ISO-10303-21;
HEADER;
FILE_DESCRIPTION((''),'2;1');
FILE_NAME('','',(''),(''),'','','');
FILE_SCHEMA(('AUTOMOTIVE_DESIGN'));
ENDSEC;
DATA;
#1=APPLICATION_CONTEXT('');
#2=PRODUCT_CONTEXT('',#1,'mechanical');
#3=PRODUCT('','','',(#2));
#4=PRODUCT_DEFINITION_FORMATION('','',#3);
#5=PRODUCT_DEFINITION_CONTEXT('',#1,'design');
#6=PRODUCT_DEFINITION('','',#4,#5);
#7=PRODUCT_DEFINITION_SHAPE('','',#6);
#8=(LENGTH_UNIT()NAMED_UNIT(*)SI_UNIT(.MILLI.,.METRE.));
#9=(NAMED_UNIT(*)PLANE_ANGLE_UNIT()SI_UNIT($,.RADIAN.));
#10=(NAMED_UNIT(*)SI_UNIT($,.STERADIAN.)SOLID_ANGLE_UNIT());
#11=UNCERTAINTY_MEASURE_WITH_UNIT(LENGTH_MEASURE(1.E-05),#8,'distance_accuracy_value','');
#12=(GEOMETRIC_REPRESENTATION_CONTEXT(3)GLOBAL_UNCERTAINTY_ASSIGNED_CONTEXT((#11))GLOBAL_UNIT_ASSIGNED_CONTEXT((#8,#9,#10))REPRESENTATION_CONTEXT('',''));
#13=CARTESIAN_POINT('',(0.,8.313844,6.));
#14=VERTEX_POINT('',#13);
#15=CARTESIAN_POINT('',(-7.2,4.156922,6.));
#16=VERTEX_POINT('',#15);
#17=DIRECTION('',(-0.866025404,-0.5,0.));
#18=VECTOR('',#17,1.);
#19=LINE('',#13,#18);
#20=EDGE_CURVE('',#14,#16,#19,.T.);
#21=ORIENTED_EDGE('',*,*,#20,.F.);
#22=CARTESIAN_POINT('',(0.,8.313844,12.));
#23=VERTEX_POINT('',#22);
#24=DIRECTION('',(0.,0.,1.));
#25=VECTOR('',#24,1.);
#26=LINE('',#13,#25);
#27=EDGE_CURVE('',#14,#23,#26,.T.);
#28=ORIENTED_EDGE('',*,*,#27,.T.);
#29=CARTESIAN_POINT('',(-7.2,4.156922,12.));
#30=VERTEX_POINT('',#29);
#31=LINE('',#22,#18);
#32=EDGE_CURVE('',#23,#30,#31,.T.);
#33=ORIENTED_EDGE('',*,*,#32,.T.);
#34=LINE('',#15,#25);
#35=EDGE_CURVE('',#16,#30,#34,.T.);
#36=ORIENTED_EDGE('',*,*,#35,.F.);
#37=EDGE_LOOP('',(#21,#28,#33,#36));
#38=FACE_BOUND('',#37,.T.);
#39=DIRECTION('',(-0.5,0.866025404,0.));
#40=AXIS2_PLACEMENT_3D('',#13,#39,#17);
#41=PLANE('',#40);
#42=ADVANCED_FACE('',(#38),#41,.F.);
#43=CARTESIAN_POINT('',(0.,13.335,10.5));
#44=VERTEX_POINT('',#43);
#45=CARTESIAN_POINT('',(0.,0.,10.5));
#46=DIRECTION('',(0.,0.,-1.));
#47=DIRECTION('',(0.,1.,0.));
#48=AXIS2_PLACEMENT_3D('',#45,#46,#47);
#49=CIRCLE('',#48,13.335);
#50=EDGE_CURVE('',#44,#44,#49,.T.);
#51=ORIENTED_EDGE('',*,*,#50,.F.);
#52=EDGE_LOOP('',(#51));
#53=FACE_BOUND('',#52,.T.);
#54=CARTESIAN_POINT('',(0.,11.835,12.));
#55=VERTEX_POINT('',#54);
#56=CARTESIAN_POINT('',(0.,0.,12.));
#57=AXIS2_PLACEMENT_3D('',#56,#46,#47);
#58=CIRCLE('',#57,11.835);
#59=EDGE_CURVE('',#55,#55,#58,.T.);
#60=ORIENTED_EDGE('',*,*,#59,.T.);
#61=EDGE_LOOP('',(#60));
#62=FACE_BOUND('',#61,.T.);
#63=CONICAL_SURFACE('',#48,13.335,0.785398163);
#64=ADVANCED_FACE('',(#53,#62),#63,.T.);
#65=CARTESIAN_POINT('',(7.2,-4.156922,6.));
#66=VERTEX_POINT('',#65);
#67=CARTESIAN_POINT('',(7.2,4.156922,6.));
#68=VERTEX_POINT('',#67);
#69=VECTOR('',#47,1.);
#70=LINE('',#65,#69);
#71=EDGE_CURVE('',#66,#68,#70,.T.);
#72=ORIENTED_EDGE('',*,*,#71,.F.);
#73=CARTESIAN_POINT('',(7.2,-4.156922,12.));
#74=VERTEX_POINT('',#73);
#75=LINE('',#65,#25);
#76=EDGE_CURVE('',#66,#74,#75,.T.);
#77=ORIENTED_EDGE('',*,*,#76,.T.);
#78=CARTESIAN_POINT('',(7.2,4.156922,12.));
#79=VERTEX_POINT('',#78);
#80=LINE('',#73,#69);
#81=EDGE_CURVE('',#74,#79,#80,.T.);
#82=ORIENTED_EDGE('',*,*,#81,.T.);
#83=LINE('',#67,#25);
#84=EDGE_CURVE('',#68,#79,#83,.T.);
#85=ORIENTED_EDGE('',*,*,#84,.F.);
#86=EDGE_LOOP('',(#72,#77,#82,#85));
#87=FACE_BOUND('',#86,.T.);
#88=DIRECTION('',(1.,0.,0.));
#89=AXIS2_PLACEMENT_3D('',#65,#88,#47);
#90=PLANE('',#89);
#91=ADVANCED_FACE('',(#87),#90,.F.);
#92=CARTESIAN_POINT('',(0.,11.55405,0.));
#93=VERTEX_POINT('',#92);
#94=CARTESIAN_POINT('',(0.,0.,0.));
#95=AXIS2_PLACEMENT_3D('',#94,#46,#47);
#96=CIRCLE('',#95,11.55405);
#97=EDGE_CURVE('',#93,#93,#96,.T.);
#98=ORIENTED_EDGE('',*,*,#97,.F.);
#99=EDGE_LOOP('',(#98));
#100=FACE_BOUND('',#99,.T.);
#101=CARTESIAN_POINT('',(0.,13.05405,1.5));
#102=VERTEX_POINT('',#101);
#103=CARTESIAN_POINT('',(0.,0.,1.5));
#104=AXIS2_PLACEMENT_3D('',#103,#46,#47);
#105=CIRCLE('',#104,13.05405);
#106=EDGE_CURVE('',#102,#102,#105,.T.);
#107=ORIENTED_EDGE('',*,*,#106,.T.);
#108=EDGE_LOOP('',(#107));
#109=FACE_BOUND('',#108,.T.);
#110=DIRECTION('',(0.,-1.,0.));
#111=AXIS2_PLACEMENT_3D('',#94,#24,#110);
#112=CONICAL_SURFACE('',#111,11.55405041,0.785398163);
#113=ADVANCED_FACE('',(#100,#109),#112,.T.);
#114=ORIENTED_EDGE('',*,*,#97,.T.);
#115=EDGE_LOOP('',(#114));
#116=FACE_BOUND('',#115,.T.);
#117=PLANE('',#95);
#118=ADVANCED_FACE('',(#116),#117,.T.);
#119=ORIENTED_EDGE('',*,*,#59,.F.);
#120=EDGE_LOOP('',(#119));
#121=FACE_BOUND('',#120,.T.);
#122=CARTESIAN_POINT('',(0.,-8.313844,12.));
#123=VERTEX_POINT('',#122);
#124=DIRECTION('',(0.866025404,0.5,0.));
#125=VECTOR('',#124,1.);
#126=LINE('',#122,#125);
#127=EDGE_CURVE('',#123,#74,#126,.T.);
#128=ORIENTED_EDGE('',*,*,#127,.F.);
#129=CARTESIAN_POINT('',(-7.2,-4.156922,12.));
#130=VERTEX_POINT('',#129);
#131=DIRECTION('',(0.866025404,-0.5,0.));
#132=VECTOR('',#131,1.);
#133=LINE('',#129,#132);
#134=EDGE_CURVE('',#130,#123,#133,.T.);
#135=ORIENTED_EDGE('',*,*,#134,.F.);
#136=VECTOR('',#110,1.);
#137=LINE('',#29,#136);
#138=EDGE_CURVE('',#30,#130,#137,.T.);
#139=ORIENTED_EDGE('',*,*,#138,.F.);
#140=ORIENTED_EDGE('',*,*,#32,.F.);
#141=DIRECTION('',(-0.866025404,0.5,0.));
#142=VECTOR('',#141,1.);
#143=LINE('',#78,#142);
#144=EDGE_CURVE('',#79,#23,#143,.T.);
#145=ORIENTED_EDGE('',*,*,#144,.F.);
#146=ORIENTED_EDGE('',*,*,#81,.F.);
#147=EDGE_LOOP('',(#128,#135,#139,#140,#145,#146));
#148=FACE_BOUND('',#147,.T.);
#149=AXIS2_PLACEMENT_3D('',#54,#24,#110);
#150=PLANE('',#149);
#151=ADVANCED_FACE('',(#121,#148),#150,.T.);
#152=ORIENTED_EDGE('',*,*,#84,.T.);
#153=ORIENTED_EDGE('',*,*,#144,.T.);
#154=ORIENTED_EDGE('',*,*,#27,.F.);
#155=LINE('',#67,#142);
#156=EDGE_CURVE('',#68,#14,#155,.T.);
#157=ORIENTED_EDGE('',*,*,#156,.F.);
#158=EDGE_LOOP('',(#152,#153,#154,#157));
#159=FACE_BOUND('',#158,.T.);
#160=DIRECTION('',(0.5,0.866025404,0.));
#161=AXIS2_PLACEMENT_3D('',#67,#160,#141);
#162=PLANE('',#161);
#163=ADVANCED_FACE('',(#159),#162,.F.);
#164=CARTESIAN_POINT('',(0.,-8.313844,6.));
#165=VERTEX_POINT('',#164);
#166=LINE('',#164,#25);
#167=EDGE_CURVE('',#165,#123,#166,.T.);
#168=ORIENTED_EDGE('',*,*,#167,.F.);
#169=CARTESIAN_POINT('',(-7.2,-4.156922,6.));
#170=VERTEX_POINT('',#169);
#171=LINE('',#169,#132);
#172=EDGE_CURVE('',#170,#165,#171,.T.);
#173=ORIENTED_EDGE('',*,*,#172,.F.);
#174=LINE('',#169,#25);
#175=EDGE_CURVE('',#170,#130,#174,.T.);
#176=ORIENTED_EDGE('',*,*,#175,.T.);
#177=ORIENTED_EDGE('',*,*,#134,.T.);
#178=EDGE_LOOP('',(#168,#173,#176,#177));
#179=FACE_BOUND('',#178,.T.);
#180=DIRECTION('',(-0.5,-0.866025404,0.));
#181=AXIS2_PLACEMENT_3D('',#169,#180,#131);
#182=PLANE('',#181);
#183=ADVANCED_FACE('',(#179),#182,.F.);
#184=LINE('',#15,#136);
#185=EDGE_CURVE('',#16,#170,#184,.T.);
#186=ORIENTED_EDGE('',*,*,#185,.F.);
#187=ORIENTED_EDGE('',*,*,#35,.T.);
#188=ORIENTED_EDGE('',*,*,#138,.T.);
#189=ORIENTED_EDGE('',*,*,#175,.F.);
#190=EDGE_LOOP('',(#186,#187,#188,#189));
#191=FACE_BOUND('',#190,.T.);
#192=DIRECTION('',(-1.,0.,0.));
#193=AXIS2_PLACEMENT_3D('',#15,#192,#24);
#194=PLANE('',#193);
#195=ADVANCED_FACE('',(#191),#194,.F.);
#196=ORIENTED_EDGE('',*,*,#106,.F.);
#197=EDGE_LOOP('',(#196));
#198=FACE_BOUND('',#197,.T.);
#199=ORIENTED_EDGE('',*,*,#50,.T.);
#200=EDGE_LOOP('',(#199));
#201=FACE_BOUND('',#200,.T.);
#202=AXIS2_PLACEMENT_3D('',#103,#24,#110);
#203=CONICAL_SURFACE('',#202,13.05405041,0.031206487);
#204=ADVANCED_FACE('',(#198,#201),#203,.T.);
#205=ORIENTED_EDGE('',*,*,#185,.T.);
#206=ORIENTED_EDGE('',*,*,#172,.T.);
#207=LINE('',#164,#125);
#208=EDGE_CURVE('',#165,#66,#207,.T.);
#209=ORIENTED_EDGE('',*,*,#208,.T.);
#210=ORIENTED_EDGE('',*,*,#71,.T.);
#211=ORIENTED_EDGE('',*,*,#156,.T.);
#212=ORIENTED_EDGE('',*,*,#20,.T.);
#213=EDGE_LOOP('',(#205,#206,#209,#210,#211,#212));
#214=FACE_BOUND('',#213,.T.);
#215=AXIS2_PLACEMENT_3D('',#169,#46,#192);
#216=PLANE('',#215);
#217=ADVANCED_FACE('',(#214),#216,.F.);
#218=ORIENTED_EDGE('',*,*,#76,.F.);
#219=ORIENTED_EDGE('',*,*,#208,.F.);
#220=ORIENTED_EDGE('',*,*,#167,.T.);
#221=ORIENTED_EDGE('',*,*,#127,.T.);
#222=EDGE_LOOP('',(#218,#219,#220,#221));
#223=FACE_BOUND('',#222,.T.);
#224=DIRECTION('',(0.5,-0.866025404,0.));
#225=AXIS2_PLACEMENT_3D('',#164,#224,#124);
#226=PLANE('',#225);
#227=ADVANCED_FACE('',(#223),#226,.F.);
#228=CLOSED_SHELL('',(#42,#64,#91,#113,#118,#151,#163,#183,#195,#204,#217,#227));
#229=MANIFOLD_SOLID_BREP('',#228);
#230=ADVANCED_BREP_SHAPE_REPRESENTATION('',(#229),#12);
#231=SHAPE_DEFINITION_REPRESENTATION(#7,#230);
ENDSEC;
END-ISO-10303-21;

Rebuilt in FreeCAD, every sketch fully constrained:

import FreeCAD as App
import Part
import Sketcher
from FreeCAD import Vector
Q = App.Units.Quantity


def add_polygon(sketch, points):
    """Adds a closed chain of lines whose ends are joined by coincident constraints."""
    first, n = sketch.GeometryCount, len(points)
    for a, b in zip(points, points[1:] + points[:1]):
        sketch.addGeometry(Part.LineSegment(App.Vector(*a, 0), App.Vector(*b, 0)), False)
    for i in range(n):
        sketch.addConstraint(Sketcher.Constraint("Coincident", first + i, 2, first + (i + 1) % n, 1))

doc = App.newDocument("Part")
body = doc.addObject("PartDesign::Body", "Body")

# Sketch on YZ plane
sketch1 = body.newObject("Sketcher::SketchObject", "Sketch")
sketch1.AttachmentSupport = (doc.getObject("YZ_Plane"), [""])
sketch1.MapMode = "FlatFace"
add_polygon(sketch1, [(0, 0), (11.6, 0), (13.1, 1.5), (13.3, 10.5), (11.8, 12), (0, 12)])  # lines 0-5
sketch1.addConstraint(Sketcher.Constraint("Horizontal", 0))
sketch1.addConstraint(Sketcher.Constraint("Horizontal", 4))
sketch1.addConstraint(Sketcher.Constraint("Vertical", 5))
sketch1.addConstraint(Sketcher.Constraint("Coincident", 5, 2, -1, 1))
sketch1.addConstraint(Sketcher.Constraint("Perpendicular", 1, 3))
sketch1.addConstraint(Sketcher.Constraint("Equal", 1, 3))
sketch1.addConstraint(Sketcher.Constraint("DistanceY", 5, 2, 5, 1, Q("12 mm")))
sketch1.addConstraint(Sketcher.Constraint("Angle", 1, Q("45 deg")))
sketch1.addConstraint(Sketcher.Constraint("DistanceY", 1, 2, 2, 2, Q("9 mm")))
sketch1.addConstraint(Sketcher.Constraint("DistanceX", 4, 2, 4, 1, Q("11.835 mm")))
sketch1.addConstraint(Sketcher.Constraint("DistanceX", 0, 1, 0, 2, Q("11.55405 mm")))
revolution = body.newObject("PartDesign::Revolution", "Revolution")
revolution.Profile = sketch1
revolution.ReferenceAxis = (sketch1, ["V_Axis"])
revolution.Angle = 360

# Sketch on XY plane
sketch2 = body.newObject("Sketcher::SketchObject", "Sketch001")
sketch2.AttachmentSupport = (doc.getObject("XY_Plane"), [""])
sketch2.MapMode = "FlatFace"
sketch2.AttachmentOffset = App.Placement(Vector(0, 0, 12), App.Rotation())
add_polygon(sketch2, [(0, -8), (7, -4), (7, 4), (0, 8), (-7, 4), (-7, -4)])  # lines 0-5
sketch2.addConstraint(Sketcher.Constraint("Vertical", 1))
sketch2.addConstraint(Sketcher.Constraint("Vertical", 4))
sketch2.addConstraint(Sketcher.Constraint("Symmetric", 0, 2, 3, 2, -1, 1))
sketch2.addConstraint(Sketcher.Constraint("Symmetric", 2, 2, 5, 2, -1, 1))
sketch2.addConstraint(Sketcher.Constraint("PointOnObject", 2, 2, -2))
sketch2.addConstraint(Sketcher.Constraint("Parallel", 2, 5))
sketch2.addConstraint(Sketcher.Constraint("Horizontal", 1, 2, 3, 2))
sketch2.addConstraint(Sketcher.Constraint("Angle", 0, Q("30 deg")))
sketch2.addConstraint(Sketcher.Constraint("DistanceX", -1, 1, 0, 2, Q("7.2 mm")))
sketch2.addConstraint(Sketcher.Constraint("DistanceY", 1, 1, 1, 2, Q("8.313844 mm")))
pocket1 = body.newObject("PartDesign::Pocket", "Pocket")
pocket1.Profile = sketch2
pocket1.Length = 6

doc.recompute()
